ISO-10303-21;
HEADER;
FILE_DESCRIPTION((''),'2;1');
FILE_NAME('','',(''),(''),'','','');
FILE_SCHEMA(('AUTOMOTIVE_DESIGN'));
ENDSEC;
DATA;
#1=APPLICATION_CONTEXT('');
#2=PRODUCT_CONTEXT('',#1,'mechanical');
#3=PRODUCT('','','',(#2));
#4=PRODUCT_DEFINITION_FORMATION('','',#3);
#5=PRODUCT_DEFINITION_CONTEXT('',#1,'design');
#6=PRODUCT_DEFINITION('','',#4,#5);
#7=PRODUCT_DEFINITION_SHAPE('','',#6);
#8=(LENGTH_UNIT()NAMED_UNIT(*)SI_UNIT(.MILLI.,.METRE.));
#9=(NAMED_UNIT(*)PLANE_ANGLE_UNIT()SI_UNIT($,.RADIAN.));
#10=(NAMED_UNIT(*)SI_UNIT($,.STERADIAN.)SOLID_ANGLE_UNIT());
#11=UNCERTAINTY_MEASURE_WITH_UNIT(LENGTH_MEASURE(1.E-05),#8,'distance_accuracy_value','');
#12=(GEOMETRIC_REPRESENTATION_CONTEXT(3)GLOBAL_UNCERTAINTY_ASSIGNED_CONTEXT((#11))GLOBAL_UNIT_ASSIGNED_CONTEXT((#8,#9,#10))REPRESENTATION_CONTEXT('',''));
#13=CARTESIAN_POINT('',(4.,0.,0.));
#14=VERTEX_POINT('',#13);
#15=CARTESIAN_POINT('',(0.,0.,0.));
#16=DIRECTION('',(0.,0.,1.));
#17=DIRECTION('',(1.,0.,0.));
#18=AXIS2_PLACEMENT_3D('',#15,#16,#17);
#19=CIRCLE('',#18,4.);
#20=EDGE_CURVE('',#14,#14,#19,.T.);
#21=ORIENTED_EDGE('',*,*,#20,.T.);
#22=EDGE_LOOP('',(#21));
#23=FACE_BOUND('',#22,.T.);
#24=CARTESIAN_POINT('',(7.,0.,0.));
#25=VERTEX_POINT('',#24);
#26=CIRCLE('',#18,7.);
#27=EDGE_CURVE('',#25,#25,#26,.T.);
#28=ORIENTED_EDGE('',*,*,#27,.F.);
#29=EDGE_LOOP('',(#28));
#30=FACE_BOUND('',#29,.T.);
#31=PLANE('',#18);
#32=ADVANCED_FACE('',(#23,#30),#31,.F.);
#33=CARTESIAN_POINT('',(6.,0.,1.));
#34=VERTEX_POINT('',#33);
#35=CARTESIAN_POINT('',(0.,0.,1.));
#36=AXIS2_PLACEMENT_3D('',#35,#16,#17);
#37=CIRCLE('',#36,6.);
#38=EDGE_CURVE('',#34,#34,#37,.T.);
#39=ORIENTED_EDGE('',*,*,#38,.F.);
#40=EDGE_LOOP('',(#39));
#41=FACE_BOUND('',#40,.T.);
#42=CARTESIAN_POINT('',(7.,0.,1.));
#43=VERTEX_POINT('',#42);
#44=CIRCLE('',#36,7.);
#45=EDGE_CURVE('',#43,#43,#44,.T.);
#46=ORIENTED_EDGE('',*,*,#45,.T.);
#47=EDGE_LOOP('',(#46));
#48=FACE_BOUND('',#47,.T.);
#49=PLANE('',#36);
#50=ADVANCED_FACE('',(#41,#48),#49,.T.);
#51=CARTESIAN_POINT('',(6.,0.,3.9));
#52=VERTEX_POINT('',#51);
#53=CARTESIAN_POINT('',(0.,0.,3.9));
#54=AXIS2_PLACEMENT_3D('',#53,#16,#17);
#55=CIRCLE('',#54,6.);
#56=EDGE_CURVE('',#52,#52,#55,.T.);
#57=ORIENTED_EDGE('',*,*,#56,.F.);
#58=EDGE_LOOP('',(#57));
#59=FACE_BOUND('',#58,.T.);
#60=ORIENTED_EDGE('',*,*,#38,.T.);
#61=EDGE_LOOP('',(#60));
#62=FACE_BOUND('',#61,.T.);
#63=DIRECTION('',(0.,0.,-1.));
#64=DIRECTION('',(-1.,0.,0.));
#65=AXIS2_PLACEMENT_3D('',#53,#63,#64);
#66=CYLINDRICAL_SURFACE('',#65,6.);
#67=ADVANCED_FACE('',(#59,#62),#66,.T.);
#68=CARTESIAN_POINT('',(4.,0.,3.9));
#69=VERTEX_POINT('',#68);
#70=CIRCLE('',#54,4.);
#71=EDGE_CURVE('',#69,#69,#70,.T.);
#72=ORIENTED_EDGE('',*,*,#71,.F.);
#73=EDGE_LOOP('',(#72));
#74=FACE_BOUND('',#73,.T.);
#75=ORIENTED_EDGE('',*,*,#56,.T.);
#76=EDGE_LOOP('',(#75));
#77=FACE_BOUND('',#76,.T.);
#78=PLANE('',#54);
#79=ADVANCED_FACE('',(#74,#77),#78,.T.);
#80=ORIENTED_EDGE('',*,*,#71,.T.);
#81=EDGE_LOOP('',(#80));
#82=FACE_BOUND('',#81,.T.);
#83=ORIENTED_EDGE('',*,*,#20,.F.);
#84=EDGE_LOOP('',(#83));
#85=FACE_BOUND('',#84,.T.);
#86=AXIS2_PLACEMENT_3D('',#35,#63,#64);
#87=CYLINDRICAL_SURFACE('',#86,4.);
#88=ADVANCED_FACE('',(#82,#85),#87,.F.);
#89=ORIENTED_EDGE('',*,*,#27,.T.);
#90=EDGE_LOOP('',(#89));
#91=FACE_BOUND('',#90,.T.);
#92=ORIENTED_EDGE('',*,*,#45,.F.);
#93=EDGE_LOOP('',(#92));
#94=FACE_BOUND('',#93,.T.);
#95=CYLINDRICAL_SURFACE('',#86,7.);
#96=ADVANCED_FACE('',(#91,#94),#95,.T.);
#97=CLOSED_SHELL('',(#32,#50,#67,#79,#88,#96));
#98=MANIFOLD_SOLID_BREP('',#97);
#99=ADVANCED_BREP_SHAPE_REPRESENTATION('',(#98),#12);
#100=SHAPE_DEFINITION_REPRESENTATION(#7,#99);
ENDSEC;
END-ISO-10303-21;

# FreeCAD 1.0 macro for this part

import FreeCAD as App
import Part
import Sketcher

doc = App.newDocument("Part")
body = doc.addObject("PartDesign::Body", "Body")

sketch1 = body.newObject("Sketcher::SketchObject", "Sketch")
sketch1.AttachmentSupport = (doc.getObject("XY_Plane"), [""])
sketch1.MapMode = "FlatFace"
sketch1.addGeometry(Part.Circle(App.Vector(0, 0, 0), App.Vector(0, 0, 1), 7), False)
sketch1.addGeometry(Part.Circle(App.Vector(0, 0, 0), App.Vector(0, 0, 1), 4), False)
sketch1.addConstraint(Sketcher.Constraint("Coincident", 0, 3, -1, 1))
sketch1.addConstraint(Sketcher.Constraint("Coincident", 1, 3, -1, 1))
sketch1.addConstraint(Sketcher.Constraint("Diameter", 0, 14.0))
sketch1.addConstraint(Sketcher.Constraint("Diameter", 1, 8.0))
pad1 = body.newObject("PartDesign::Pad", "Pad")
pad1.Profile = sketch1
pad1.Length = 1

sketch2 = body.newObject("Sketcher::SketchObject", "Sketch001")
sketch2.AttachmentSupport = (doc.getObject("XY_Plane"), [""])
sketch2.MapMode = "FlatFace"
sketch2.AttachmentOffset = App.Placement(App.Vector(0, 0, 1), App.Rotation())
sketch2.addGeometry(Part.Circle(App.Vector(0, 0, 0), App.Vector(0, 0, 1), 6), False)
sketch2.addGeometry(Part.Circle(App.Vector(0, 0, 0), App.Vector(0, 0, 1), 4), False)
sketch2.addConstraint(Sketcher.Constraint("Coincident", 0, 3, -1, 1))
sketch2.addConstraint(Sketcher.Constraint("Coincident", 1, 3, -1, 1))
sketch2.addConstraint(Sketcher.Constraint("Diameter", 0, 12.0))
sketch2.addConstraint(Sketcher.Constraint("Diameter", 1, 8.0))
pad2 = body.newObject("PartDesign::Pad", "Pad001")
pad2.Profile = sketch2
pad2.Length = 2.9

doc.recompute()
